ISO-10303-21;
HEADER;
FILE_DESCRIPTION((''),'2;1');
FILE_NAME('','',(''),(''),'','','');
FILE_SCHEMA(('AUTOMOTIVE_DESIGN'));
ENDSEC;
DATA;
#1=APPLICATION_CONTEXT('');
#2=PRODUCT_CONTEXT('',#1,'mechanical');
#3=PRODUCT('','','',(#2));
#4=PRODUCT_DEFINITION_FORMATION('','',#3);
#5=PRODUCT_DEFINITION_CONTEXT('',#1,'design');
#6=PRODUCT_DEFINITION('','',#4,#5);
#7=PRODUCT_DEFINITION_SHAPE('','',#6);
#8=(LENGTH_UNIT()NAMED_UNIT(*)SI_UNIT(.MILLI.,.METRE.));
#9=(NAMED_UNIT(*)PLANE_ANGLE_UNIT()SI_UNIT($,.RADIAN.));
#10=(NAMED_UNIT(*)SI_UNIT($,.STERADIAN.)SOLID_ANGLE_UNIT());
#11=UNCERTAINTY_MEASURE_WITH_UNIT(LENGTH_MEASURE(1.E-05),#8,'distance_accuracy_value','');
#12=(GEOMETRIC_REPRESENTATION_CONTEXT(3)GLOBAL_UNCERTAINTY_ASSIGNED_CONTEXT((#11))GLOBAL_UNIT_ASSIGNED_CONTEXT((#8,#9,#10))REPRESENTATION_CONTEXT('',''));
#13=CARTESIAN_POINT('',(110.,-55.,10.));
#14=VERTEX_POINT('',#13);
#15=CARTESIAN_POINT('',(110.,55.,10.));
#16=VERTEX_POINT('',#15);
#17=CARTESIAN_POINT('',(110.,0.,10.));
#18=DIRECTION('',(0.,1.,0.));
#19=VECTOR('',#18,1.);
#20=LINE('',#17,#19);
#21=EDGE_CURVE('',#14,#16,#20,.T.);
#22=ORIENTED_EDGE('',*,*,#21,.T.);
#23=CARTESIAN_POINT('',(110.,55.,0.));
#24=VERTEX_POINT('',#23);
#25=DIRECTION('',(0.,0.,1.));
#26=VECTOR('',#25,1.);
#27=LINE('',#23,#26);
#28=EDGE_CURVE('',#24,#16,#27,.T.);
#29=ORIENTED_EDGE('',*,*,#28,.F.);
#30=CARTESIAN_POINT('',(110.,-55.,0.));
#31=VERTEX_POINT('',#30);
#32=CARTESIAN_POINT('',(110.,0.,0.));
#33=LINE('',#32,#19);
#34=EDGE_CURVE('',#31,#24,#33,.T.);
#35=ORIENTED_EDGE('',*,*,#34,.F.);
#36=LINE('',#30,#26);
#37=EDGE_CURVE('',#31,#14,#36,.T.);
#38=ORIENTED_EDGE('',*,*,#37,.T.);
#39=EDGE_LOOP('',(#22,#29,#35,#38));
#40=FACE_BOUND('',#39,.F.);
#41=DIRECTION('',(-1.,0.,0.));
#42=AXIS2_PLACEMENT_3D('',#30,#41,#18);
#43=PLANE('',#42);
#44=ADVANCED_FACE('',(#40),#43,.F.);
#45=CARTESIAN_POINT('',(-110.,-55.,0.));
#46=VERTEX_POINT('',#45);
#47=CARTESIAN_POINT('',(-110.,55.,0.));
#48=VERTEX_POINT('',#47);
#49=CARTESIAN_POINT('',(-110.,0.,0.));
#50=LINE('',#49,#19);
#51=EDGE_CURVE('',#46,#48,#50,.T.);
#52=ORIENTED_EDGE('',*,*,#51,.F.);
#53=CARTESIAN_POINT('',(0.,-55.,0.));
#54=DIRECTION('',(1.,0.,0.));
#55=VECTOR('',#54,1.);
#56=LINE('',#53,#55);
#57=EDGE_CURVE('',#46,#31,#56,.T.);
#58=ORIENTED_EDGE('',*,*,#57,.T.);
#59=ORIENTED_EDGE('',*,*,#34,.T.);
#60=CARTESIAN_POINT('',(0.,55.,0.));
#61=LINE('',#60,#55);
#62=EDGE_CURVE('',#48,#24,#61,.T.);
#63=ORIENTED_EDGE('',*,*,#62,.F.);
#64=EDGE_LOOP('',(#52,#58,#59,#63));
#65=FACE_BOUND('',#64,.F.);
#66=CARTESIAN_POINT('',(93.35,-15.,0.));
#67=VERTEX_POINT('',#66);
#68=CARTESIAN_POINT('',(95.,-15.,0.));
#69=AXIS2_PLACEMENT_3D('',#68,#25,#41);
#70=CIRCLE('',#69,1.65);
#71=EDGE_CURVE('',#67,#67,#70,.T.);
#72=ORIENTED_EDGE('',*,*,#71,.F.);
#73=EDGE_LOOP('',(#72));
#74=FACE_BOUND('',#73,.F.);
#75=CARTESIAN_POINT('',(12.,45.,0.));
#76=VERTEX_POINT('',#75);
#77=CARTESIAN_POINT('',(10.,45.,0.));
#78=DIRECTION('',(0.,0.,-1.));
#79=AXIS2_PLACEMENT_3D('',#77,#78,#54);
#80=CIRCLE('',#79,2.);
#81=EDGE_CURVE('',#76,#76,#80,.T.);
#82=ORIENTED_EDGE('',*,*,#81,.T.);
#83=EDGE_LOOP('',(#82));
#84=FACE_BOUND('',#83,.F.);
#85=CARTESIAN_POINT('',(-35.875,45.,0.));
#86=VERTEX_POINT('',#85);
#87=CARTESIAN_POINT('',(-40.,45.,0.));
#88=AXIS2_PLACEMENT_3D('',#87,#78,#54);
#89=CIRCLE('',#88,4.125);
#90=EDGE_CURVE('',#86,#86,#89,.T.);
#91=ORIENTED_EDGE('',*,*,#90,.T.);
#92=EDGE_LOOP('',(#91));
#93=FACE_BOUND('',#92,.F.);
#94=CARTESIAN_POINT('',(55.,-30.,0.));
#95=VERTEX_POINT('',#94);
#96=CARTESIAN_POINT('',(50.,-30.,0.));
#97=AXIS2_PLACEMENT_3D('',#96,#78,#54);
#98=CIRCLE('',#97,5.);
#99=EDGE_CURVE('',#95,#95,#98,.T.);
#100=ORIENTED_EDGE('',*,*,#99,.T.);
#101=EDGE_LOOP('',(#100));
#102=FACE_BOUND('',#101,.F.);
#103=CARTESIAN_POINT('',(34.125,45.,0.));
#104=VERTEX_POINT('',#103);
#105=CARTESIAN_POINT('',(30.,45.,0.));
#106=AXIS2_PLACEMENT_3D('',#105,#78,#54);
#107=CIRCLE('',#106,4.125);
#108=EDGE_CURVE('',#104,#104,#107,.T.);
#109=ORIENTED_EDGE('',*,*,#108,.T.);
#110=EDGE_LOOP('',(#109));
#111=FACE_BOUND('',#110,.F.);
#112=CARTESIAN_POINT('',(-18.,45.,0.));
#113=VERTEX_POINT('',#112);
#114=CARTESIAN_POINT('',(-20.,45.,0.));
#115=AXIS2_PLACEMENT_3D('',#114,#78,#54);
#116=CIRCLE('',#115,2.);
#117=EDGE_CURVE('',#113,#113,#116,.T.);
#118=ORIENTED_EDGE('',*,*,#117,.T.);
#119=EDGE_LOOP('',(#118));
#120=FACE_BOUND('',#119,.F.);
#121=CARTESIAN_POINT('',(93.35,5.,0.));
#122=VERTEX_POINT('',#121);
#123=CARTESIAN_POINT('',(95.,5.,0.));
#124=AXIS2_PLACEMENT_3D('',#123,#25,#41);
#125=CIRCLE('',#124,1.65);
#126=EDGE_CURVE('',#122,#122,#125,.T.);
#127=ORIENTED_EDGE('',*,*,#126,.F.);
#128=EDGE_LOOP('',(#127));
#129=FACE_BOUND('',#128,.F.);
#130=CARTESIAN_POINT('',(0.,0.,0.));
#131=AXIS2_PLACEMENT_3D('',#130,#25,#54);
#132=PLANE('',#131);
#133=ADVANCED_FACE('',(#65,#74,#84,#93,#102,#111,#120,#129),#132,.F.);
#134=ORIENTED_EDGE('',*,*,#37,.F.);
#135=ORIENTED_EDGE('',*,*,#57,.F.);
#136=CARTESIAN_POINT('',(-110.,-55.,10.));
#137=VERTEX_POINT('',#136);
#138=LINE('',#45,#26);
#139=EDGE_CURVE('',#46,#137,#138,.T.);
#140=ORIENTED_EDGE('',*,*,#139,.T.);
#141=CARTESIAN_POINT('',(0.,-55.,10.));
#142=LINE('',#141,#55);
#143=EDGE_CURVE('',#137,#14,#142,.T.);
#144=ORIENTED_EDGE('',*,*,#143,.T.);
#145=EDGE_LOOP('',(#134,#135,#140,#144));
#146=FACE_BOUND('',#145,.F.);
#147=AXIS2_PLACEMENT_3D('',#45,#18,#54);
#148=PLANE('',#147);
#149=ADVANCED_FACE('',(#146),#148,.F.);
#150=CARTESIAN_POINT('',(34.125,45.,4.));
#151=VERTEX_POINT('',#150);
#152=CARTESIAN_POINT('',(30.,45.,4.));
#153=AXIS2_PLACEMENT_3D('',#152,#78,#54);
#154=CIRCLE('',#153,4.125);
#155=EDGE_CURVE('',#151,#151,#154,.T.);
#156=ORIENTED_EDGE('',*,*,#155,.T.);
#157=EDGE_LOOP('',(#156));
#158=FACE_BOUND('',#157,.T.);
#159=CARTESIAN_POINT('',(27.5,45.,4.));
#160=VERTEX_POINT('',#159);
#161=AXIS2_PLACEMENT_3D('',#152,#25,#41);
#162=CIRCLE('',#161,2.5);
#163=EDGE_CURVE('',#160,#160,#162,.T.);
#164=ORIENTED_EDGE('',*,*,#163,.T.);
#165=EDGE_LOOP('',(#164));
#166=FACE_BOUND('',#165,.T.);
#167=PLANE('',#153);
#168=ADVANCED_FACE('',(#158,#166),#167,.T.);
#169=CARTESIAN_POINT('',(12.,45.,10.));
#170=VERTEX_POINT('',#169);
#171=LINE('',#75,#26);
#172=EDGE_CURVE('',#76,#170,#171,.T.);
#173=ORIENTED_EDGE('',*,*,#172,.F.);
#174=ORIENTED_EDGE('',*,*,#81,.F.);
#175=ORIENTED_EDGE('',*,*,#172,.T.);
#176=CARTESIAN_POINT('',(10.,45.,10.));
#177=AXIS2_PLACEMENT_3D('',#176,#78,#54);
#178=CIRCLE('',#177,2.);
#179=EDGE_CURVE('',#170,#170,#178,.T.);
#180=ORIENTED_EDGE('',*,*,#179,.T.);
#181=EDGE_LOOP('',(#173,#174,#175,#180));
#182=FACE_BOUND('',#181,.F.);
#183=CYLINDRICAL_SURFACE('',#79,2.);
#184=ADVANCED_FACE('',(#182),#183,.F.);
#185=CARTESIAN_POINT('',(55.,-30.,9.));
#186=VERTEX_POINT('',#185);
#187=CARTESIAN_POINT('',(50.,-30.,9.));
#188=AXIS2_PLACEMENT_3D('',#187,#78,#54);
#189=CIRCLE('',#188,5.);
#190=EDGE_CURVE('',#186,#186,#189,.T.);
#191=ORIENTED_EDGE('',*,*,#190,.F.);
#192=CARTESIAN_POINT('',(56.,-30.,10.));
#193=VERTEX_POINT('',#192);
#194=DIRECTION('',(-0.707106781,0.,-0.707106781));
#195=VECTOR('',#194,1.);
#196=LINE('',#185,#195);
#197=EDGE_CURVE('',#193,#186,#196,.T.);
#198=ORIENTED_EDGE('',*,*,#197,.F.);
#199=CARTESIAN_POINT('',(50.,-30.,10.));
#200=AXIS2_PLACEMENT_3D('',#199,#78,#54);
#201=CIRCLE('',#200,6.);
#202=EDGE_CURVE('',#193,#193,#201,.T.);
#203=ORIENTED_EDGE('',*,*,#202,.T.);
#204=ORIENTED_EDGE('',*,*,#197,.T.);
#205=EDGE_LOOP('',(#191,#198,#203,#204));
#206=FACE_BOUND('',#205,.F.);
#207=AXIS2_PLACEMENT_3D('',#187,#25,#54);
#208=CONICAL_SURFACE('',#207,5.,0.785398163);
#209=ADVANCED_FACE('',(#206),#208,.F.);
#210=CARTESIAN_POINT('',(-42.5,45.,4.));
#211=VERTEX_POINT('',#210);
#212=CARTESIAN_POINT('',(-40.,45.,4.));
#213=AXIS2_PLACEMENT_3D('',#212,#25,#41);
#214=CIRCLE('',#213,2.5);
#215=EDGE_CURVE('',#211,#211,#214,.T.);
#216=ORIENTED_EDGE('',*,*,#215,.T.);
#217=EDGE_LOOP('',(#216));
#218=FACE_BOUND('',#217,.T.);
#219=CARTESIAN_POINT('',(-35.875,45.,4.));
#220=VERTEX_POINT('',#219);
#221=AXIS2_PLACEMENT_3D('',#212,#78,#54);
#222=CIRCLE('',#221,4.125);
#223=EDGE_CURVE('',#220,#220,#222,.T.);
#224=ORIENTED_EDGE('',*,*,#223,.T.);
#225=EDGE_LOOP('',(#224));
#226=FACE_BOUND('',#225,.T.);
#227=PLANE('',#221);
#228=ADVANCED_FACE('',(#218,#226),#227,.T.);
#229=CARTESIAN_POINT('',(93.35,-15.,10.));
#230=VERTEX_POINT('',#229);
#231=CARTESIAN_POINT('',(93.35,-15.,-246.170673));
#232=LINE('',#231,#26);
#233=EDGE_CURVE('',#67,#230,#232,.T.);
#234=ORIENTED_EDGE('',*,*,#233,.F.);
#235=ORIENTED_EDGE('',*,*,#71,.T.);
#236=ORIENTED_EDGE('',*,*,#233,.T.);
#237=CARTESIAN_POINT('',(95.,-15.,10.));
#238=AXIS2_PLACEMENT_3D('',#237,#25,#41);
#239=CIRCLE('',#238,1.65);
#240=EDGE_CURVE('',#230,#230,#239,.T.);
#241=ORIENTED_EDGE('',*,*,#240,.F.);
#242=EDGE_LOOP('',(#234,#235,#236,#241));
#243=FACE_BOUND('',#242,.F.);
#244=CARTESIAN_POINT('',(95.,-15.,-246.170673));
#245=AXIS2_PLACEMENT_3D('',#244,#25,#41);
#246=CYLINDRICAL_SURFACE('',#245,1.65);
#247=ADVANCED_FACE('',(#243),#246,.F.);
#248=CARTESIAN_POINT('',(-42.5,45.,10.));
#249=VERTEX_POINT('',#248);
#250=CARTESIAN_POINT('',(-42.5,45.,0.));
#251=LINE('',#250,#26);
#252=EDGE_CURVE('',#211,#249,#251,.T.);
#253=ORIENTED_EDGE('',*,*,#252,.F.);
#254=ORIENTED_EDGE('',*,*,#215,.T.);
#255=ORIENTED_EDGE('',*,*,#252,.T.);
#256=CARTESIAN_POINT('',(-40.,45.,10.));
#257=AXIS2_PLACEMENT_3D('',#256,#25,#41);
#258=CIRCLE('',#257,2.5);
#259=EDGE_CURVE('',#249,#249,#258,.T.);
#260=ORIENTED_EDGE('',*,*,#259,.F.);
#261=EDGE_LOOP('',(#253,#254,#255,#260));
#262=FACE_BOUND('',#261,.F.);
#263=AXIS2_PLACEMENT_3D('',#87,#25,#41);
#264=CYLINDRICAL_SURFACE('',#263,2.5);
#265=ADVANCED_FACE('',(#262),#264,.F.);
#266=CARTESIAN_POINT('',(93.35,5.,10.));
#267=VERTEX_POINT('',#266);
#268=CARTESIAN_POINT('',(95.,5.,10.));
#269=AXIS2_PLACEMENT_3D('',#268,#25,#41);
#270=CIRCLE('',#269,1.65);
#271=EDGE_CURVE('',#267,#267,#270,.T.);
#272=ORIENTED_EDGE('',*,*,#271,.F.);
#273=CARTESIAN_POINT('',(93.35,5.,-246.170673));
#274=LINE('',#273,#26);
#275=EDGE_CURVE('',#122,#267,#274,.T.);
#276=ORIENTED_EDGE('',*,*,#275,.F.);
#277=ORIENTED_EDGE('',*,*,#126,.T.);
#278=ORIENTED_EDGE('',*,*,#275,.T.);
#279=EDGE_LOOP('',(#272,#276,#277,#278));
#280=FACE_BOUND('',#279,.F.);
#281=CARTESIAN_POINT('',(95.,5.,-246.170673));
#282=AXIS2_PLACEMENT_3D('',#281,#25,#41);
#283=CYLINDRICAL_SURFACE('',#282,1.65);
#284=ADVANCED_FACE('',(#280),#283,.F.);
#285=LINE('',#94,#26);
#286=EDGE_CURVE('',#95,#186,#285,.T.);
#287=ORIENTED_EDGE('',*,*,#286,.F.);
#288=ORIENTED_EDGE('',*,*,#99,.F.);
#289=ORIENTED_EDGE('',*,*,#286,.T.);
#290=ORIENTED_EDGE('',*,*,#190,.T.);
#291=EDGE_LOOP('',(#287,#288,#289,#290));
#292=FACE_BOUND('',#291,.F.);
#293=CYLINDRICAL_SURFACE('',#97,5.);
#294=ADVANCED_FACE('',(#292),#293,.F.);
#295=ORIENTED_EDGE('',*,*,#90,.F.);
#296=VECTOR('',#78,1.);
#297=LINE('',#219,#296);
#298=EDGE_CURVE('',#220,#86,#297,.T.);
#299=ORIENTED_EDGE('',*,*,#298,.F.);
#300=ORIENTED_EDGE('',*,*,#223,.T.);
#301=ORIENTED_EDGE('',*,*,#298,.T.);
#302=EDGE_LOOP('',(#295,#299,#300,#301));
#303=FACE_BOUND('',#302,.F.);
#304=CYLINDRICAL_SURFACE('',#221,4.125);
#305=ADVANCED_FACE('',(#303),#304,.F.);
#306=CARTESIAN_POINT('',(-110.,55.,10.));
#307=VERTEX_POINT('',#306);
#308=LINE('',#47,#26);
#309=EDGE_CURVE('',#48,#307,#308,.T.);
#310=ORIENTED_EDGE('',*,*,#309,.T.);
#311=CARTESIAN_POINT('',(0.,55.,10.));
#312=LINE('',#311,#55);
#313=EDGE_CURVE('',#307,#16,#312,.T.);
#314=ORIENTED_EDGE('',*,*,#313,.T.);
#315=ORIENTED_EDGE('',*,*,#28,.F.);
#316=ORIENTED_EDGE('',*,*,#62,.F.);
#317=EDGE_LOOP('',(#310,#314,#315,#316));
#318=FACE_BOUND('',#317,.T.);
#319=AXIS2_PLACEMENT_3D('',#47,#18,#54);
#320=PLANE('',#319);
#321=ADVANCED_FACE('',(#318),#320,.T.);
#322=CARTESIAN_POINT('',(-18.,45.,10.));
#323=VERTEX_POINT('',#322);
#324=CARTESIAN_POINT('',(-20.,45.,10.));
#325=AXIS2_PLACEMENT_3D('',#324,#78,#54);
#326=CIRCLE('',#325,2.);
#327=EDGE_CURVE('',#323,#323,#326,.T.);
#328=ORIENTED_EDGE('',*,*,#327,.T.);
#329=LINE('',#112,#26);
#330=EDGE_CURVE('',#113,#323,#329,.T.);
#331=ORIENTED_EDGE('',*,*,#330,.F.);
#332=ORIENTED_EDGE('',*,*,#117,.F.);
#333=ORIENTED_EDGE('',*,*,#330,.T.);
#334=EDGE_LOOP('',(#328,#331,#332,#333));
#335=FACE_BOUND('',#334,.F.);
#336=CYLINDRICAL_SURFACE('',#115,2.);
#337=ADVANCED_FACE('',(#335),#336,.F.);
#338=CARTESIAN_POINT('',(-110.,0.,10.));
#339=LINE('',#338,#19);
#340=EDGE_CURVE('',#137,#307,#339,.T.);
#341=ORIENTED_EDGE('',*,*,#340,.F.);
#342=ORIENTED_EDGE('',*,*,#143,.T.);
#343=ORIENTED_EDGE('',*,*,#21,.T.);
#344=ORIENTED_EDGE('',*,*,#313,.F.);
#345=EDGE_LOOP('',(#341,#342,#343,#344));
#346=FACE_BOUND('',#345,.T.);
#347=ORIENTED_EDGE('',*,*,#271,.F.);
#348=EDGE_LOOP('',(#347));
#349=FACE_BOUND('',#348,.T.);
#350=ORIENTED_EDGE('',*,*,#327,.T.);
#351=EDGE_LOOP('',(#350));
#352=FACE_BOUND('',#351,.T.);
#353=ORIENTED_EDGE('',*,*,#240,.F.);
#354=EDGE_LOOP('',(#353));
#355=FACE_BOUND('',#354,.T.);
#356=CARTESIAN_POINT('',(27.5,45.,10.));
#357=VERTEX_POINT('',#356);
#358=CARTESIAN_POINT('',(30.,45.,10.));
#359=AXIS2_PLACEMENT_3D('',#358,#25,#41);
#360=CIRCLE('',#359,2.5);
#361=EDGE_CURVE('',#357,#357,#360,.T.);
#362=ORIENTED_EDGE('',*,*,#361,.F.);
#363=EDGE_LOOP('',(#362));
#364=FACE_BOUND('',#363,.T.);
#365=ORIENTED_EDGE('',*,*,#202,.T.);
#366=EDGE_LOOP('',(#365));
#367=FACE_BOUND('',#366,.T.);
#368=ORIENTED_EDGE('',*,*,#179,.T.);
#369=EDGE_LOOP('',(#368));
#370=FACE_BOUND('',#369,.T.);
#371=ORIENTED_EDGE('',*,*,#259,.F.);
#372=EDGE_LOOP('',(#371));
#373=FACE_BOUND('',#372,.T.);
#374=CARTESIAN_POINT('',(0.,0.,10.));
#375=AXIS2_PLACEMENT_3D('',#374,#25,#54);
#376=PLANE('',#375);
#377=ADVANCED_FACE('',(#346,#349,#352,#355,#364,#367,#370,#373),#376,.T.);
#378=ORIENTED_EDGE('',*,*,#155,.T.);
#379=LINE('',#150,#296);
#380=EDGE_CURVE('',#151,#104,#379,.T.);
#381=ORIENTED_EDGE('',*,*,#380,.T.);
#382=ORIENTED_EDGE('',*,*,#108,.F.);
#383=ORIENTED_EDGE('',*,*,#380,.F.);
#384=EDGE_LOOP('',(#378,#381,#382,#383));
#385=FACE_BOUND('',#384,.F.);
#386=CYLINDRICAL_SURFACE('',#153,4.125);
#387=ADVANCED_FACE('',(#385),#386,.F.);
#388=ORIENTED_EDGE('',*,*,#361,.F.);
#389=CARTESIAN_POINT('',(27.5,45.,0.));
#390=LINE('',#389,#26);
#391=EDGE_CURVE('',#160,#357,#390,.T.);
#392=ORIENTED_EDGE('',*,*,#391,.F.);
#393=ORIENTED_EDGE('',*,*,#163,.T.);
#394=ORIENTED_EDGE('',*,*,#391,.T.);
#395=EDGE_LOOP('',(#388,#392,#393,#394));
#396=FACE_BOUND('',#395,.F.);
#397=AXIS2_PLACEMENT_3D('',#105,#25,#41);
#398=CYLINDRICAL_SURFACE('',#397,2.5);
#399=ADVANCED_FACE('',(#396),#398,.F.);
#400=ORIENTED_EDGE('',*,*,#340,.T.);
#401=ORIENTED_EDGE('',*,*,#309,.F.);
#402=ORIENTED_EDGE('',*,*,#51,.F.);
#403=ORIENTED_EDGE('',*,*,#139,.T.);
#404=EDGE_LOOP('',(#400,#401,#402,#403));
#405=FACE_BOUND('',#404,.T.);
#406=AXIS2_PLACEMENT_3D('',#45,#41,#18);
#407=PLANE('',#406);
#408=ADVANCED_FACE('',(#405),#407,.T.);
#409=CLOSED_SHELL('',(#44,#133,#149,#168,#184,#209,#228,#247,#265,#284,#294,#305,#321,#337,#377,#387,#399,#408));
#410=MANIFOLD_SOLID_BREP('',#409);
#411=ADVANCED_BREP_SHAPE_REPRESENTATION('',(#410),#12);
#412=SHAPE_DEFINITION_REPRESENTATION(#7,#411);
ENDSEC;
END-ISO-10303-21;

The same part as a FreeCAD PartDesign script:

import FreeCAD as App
import Part
import Sketcher


def edges_at(feature, points):
    """Names of the edges that pass closest to the given points."""
    edges = feature.Shape.Edges
    near = lambda p: min(range(len(edges)), key=lambda i: edges[i].distToShape(Part.Vertex(*p))[0])
    return sorted({f"Edge{near(p) + 1}" for p in points})


def add_polygon(sketch, points):
    """Adds a closed chain of lines whose ends are joined by coincident constraints."""
    first, n = sketch.GeometryCount, len(points)
    for a, b in zip(points, points[1:] + points[:1]):
        sketch.addGeometry(Part.LineSegment(App.Vector(*a, 0), App.Vector(*b, 0)), False)
    for i in range(n):
        sketch.addConstraint(Sketcher.Constraint("Coincident", first + i, 2, first + (i + 1) % n, 1))

doc = App.newDocument("Part")
body = doc.addObject("PartDesign::Body", "Body")

# Sketch on XY plane
sketch1 = body.newObject("Sketcher::SketchObject", "Sketch")
sketch1.AttachmentSupport = (doc.getObject("XY_Plane"), [""])
sketch1.MapMode = "FlatFace"
add_polygon(sketch1, [(-110, 55), (-110, -55), (110, -55), (110, 55)])  # lines 0-3
sketch1.addConstraint(Sketcher.Constraint("Vertical", 0))
sketch1.addConstraint(Sketcher.Constraint("Horizontal", 1))
sketch1.addConstraint(Sketcher.Constraint("Vertical", 2))
sketch1.addConstraint(Sketcher.Constraint("Horizontal", 3))
sketch1.addConstraint(Sketcher.Constraint("Symmetric", 0, 2, 2, 2, -1, 1))
sketch1.addConstraint(Sketcher.Constraint("DistanceX", 1, 1, 1, 2, 220.0))
sketch1.addConstraint(Sketcher.Constraint("DistanceY", 0, 2, 0, 1, 110.0))
pad1 = body.newObject("PartDesign::Pad", "Pad")
pad1.Profile = sketch1
pad1.Length = 10

# Sketch on XY plane
sketch2 = body.newObject("Sketcher::SketchObject", "Sketch001")
sketch2.AttachmentSupport = (doc.getObject("XY_Plane"), [""])
sketch2.MapMode = "FlatFace"
sketch2.addGeometry(Part.Circle(App.Vector(50, -30, 0), App.Vector(0, 0, 1), 5), False)
sketch2.addGeometry(Part.Circle(App.Vector(-20, 45, 0), App.Vector(0, 0, 1), 2), False)
sketch2.addGeometry(Part.Circle(App.Vector(10, 45, 0), App.Vector(0, 0, 1), 2), False)
sketch2.addConstraint(Sketcher.Constraint("Equal", 1, 2))
sketch2.addConstraint(Sketcher.Constraint("Horizontal", 1, 3, 2, 3))
sketch2.addConstraint(Sketcher.Constraint("Diameter", 0, 10.0))
sketch2.addConstraint(Sketcher.Constraint("Diameter", 1, 4.0))
sketch2.addConstraint(Sketcher.Constraint("DistanceX", -1, 1, 0, 3, 50.0))
sketch2.addConstraint(Sketcher.Constraint("DistanceY", 0, 3, -1, 1, 30.0))
sketch2.addConstraint(Sketcher.Constraint("DistanceX", 1, 3, -1, 1, 20.0))
sketch2.addConstraint(Sketcher.Constraint("DistanceY", -1, 1, 1, 3, 45.0))
sketch2.addConstraint(Sketcher.Constraint("DistanceX", -1, 1, 2, 3, 10.0))
pocket1 = body.newObject("PartDesign::Pocket", "Pocket")
pocket1.Profile = sketch2
pocket1.Type = "ThroughAll"
pocket1.Reversed = True

# Sketch on XY plane
sketch3 = body.newObject("Sketcher::SketchObject", "Sketch002")
sketch3.AttachmentSupport = (doc.getObject("XY_Plane"), [""])
sketch3.MapMode = "FlatFace"
sketch3.addGeometry(Part.Circle(App.Vector(95, 5, 0), App.Vector(0, 0, 1), 1.65), False)
sketch3.addGeometry(Part.Circle(App.Vector(95, -15, 0), App.Vector(0, 0, 1), 1.65), False)
sketch3.addConstraint(Sketcher.Constraint("Equal", 0, 1))
sketch3.addConstraint(Sketcher.Constraint("Vertical", 0, 3, 1, 3))
sketch3.addConstraint(Sketcher.Constraint("Diameter", 0, 3.3))
sketch3.addConstraint(Sketcher.Constraint("DistanceX", -1, 1, 0, 3, 95.0))
sketch3.addConstraint(Sketcher.Constraint("DistanceY", -1, 1, 0, 3, 5.0))
sketch3.addConstraint(Sketcher.Constraint("DistanceY", 1, 3, -1, 1, 15.0))
doc.recompute()
hole = body.newObject("PartDesign::Hole", "Hole")
hole.Profile = sketch3
hole.ThreadType = "None"
hole.Diameter = 3.3
hole.DepthType = "ThroughAll"
hole.Reversed = True

# Sketch on XY plane
sketch4 = body.newObject("Sketcher::SketchObject", "Sketch003")
sketch4.AttachmentSupport = (doc.getObject("XY_Plane"), [""])
sketch4.MapMode = "FlatFace"
sketch4.addGeometry(Part.Circle(App.Vector(-40, 45, 0), App.Vector(0, 0, 1), 2.5), False)
sketch4.addGeometry(Part.Circle(App.Vector(30, 45, 0), App.Vector(0, 0, 1), 2.5), False)
sketch4.addConstraint(Sketcher.Constraint("Equal", 0, 1))
sketch4.addConstraint(Sketcher.Constraint("Horizontal", 0, 3, 1, 3))
sketch4.addConstraint(Sketcher.Constraint("Diameter", 0, 5.0))
sketch4.addConstraint(Sketcher.Constraint("DistanceX", 0, 3, -1, 1, 40.0))
sketch4.addConstraint(Sketcher.Constraint("DistanceY", -1, 1, 0, 3, 45.0))
sketch4.addConstraint(Sketcher.Constraint("DistanceX", -1, 1, 1, 3, 30.0))
doc.recompute()
hole2 = body.newObject("PartDesign::Hole", "Hole001")
hole2.Profile = sketch4
hole2.ThreadType = "None"
hole2.Diameter = 5
hole2.DepthType = "ThroughAll"
hole2.HoleCutType = "Counterbore"
hole2.HoleCutDiameter = 8.25
hole2.HoleCutDepth = 4
hole2.Reversed = True
doc.recompute()

chamfer = body.newObject("PartDesign::Chamfer", "Chamfer")
chamfer.Base = (hole2, edges_at(hole2, [(45, -30, 10)]))
chamfer.Size = 1

doc.recompute()
